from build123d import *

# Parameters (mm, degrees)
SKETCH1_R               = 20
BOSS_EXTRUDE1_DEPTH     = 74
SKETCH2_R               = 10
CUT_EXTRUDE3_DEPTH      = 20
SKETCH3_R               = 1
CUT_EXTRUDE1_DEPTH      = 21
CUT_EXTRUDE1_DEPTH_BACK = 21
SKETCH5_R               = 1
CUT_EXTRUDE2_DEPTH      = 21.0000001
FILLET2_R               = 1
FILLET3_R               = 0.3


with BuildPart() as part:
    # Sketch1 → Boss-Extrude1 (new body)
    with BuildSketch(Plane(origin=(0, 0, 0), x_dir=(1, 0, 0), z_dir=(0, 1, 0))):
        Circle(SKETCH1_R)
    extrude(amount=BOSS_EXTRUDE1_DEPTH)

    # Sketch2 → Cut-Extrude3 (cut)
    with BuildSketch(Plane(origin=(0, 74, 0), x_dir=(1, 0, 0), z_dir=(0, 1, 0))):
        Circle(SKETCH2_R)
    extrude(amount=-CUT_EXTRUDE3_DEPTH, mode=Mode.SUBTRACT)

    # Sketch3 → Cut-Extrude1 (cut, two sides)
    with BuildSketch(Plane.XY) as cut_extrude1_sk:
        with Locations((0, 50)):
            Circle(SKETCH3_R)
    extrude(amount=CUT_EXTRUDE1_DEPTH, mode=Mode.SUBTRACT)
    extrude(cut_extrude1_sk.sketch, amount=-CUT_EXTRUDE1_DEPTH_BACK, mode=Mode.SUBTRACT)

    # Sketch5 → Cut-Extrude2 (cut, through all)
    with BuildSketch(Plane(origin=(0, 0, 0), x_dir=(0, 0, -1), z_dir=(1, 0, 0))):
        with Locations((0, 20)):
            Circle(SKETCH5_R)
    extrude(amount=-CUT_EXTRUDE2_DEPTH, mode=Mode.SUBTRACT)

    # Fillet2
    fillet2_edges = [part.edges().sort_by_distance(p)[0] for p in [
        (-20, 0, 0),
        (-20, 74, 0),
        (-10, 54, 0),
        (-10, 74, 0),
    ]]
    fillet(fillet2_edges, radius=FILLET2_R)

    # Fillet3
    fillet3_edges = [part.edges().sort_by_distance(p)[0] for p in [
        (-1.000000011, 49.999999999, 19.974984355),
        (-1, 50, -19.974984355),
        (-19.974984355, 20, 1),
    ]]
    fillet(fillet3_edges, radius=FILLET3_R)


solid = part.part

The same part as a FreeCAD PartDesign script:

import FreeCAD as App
import Part
import Sketcher

V = App.Vector
Q = App.Units.Quantity


def edges_at(feature, points):
    """Names of the edges that pass closest to the given points."""
    edges = feature.Shape.Edges
    near = lambda p: min(range(len(edges)), key=lambda i: edges[i].distToShape(Part.Vertex(*p))[0])
    return sorted({f"Edge{near(p) + 1}" for p in points})

doc = App.newDocument("Part")
body = doc.addObject("PartDesign::Body", "Body")

sketch1 = doc.addObject("Sketcher::SketchObject", "Sketch")
body.addObject(sketch1)
sketch1.AttachmentSupport = (doc.XZ_Plane, [""])
sketch1.MapMode = "FlatFace"
sketch1.addGeometry(Part.Circle(V(0, 0, 0), V(0, 0, 1), 20), False)
sketch1.addConstraint([
    Sketcher.Constraint("Coincident", 0, 3, -1, 1),
    Sketcher.Constraint("Diameter", 0, Q("40 mm")),
])
pad1 = doc.addObject("PartDesign::Pad", "Pad")
body.addObject(pad1)
pad1.Profile = sketch1
pad1.Length = 74
pad1.Reversed = True

sketch2 = doc.addObject("Sketcher::SketchObject", "Sketch001")
body.addObject(sketch2)
sketch2.AttachmentSupport = (doc.XZ_Plane, [""])
sketch2.MapMode = "FlatFace"
sketch2.AttachmentOffset = App.Placement(V(0, 0, -74), App.Rotation())
sketch2.addGeometry(Part.Circle(V(0, 0, 0), V(0, 0, 1), 10), False)
sketch2.addConstraint([
    Sketcher.Constraint("Coincident", 0, 3, -1, 1),
    Sketcher.Constraint("Diameter", 0, Q("20 mm")),
])
pocket1 = doc.addObject("PartDesign::Pocket", "Pocket")
body.addObject(pocket1)
pocket1.Profile = sketch2
pocket1.Length = 20
pocket1.Reversed = True

sketch3 = doc.addObject("Sketcher::SketchObject", "Sketch002")
body.addObject(sketch3)
sketch3.AttachmentSupport = (doc.XY_Plane, [""])
sketch3.MapMode = "FlatFace"
sketch3.addGeometry(Part.Circle(V(0, 50, 0), V(0, 0, 1), 1), False)
sketch3.addConstraint([
    Sketcher.Constraint("PointOnObject", 0, 3, -2),
    Sketcher.Constraint("Diameter", 0, Q("2 mm")),
    Sketcher.Constraint("DistanceY", -1, 1, 0, 3, Q("50 mm")),
])
pocket2 = doc.addObject("PartDesign::Pocket", "Pocket001")
body.addObject(pocket2)
pocket2.Profile = sketch3
pocket2.Type = "ThroughAll"
pocket2.Midplane = True

sketch4 = doc.addObject("Sketcher::SketchObject", "Sketch003")
body.addObject(sketch4)
sketch4.AttachmentSupport = (doc.YZ_Plane, [""])
sketch4.MapMode = "FlatFace"
sketch4.addGeometry(Part.Circle(V(20, 0, 0), V(0, 0, 1), 1), False)
sketch4.addConstraint([
    Sketcher.Constraint("PointOnObject", 0, 3, -1),
    Sketcher.Constraint("Diameter", 0, Q("2 mm")),
    Sketcher.Constraint("DistanceX", -1, 1, 0, 3, Q("20 mm")),
])
pocket3 = doc.addObject("PartDesign::Pocket", "Pocket002")
body.addObject(pocket3)
pocket3.Profile = sketch4
pocket3.Type = "ThroughAll"
doc.recompute()

fillet = doc.addObject("PartDesign::Fillet", "Fillet")
body.addObject(fillet)
fillet.Base = (pocket3, edges_at(pocket3, [
    (-20, 0, 0),
    (-20, 74, 0),
    (-10, 54, 0),
    (-10, 74, 0),
]))
fillet.Radius = 1
doc.recompute()

fillet2 = doc.addObject("PartDesign::Fillet", "Fillet001")
body.addObject(fillet2)
fillet2.Base = (fillet, edges_at(fillet, [(-1, 50, 19.975), (-1, 50, -19.975), (-19.975, 20, 1)]))
fillet2.Radius = 0.3

doc.recompute()
